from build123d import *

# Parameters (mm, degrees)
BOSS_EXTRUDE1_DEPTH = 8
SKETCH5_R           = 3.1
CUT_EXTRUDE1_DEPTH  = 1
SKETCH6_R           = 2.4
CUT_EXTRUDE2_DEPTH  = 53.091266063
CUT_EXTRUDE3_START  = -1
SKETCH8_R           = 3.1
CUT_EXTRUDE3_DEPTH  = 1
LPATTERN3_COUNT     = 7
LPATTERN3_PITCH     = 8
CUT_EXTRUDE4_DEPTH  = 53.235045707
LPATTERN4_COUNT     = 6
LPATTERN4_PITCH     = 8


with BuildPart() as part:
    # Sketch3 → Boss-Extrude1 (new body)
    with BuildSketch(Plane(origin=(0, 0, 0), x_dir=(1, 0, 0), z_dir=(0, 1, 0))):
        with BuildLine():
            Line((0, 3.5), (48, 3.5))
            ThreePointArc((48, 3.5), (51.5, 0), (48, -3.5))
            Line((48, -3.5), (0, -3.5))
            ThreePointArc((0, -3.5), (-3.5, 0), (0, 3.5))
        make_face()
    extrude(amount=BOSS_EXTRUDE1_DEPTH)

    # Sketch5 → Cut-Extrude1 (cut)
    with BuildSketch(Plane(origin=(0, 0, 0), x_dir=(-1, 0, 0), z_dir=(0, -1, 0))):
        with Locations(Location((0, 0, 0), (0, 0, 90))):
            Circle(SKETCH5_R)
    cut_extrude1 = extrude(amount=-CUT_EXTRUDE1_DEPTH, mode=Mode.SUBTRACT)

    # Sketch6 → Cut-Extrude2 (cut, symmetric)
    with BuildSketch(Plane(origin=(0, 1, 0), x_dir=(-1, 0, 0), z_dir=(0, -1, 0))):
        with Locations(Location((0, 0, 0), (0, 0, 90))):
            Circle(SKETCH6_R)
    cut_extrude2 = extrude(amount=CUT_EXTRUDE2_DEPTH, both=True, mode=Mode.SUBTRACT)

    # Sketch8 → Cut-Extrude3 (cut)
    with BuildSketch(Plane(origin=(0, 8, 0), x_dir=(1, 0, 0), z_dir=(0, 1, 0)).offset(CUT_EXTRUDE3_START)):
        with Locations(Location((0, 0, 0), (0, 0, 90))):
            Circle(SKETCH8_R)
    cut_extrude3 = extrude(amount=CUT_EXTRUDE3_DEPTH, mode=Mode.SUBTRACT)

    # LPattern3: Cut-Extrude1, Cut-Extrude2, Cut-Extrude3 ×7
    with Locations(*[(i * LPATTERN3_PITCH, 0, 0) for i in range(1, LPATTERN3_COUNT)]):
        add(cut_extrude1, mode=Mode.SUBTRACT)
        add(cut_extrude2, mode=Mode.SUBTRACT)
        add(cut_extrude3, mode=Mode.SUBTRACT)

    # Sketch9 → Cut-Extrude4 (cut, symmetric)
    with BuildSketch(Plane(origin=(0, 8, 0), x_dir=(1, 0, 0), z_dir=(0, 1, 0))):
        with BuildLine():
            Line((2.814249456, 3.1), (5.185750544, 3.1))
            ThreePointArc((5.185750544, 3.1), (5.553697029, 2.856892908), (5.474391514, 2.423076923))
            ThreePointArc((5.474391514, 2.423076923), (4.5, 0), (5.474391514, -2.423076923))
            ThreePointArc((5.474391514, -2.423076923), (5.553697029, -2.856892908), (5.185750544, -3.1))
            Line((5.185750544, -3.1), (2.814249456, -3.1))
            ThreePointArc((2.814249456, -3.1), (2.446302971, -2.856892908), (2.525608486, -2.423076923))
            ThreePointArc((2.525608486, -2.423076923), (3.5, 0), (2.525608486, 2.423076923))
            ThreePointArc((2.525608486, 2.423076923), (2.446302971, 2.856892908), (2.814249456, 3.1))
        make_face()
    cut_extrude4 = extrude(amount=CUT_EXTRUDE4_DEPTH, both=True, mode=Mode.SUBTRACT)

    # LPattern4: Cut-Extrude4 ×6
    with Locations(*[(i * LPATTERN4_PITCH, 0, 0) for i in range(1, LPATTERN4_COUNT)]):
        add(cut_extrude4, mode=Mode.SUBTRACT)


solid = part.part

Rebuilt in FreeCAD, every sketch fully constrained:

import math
import FreeCAD as App
import Part
import Sketcher
from FreeCAD import Vector

doc = App.newDocument("Part")
params = doc.addObject("Spreadsheet::Sheet", "Params")
for row, (alias, value) in enumerate([
    ("sketch1_radius", "3.5 mm"),
    ("sketch1_width", "48 mm"),
    ("pad1_length", "8 mm"),
    ("sketch2_diameter", "6.2 mm"),
    ("pocket1_length", "1 mm"),
    ("sketch3_diameter", "4.8 mm"),
    ("pocket2_length", "106.182532 mm"),
    ("sketch4_diameter", "6.2 mm"),
    ("pocket3_length", "1 mm"),
    ("linearpattern_pitch", "8 mm"),
    ("sketch5_radius", "0.4 mm"),
    ("sketch5_radius2", "3.5 mm"),
    ("pocket4_length", "106.470091 mm"),
    ("linearpattern2_pitch", "8 mm"),
], start=1):
    params.set(f"A{row}", alias)
    params.set(f"B{row}", "=" + value)
    params.setAlias(f"B{row}", alias)

body = doc.addObject("PartDesign::Body", "Body")

sketch1 = doc.addObject("Sketcher::SketchObject", "Sketch")
body.addObject(sketch1)
sketch1.AttachmentSupport = (doc.XZ_Plane, [""])
sketch1.MapMode = "FlatFace"
sketch1.addGeometry(Part.LineSegment(Vector(48, -3.5, 0), Vector(0, -3.5, 0)), False)
sketch1.addGeometry(Part.ArcOfCircle(Part.Circle(Vector(0, 0, 0), Vector(0, 0, 1), 3.5), math.radians(90), math.radians(270)), False)
sketch1.addGeometry(Part.LineSegment(Vector(0, 3.5, 0), Vector(48, 3.5, 0)), False)
sketch1.addGeometry(Part.ArcOfCircle(Part.Circle(Vector(48, 0, 0), Vector(0, 0, 1), 3.5), math.radians(-90), math.radians(90)), False)
sketch1.addConstraint(Sketcher.Constraint("Tangent", 0, 2, 1, 2))
sketch1.addConstraint(Sketcher.Constraint("Tangent", 1, 1, 2, 1))
sketch1.addConstraint(Sketcher.Constraint("Tangent", 2, 2, 3, 2))
sketch1.addConstraint(Sketcher.Constraint("Tangent", 3, 1, 0, 1))
sketch1.addConstraint(Sketcher.Constraint("Horizontal", 0))
sketch1.addConstraint(Sketcher.Constraint("Horizontal", 2))
sketch1.addConstraint(Sketcher.Constraint("Coincident", 1, 3, -1, 1))
sketch1.addConstraint(Sketcher.Constraint("Radius", 1, 3.5))
sketch1.addConstraint(Sketcher.Constraint("DistanceX", 0, 2, 0, 1, 48.0))
sketch1.setExpression("Constraints[7]", "Params.sketch1_radius")
sketch1.setExpression("Constraints[8]", "Params.sketch1_width")
pad1 = doc.addObject("PartDesign::Pad", "Pad")
body.addObject(pad1)
pad1.Profile = sketch1
pad1.setExpression("Length", "Params.pad1_length")
pad1.Reversed = True

sketch2 = doc.addObject("Sketcher::SketchObject", "Sketch001")
body.addObject(sketch2)
sketch2.AttachmentSupport = (doc.XZ_Plane, [""])
sketch2.MapMode = "FlatFace"
sketch2.addGeometry(Part.Circle(Vector(0, 0, 0), Vector(0, 0, 1), 3.1), False)
sketch2.addConstraint(Sketcher.Constraint("Coincident", 0, 3, -1, 1))
sketch2.addConstraint(Sketcher.Constraint("Diameter", 0, 6.2))
sketch2.setExpression("Constraints[1]", "Params.sketch2_diameter")
pocket1 = doc.addObject("PartDesign::Pocket", "Pocket")
body.addObject(pocket1)
pocket1.Profile = sketch2
pocket1.setExpression("Length", "Params.pocket1_length")

sketch3 = doc.addObject("Sketcher::SketchObject", "Sketch002")
body.addObject(sketch3)
sketch3.AttachmentSupport = (doc.XZ_Plane, [""])
sketch3.MapMode = "FlatFace"
sketch3.AttachmentOffset = App.Placement(Vector(0, 0, -1), App.Rotation())
sketch3.addGeometry(Part.Circle(Vector(0, 0, 0), Vector(0, 0, 1), 2.4), False)
sketch3.addConstraint(Sketcher.Constraint("Coincident", 0, 3, -1, 1))
sketch3.addConstraint(Sketcher.Constraint("Diameter", 0, 4.8))
sketch3.setExpression("Constraints[1]", "Params.sketch3_diameter")
pocket2 = doc.addObject("PartDesign::Pocket", "Pocket001")
body.addObject(pocket2)
pocket2.Profile = sketch3
pocket2.setExpression("Length", "Params.pocket2_length")
pocket2.Midplane = True

sketch4 = doc.addObject("Sketcher::SketchObject", "Sketch003")
body.addObject(sketch4)
sketch4.AttachmentSupport = (doc.XZ_Plane, [""])
sketch4.MapMode = "FlatFace"
sketch4.AttachmentOffset = App.Placement(Vector(0, 0, -7), App.Rotation())
sketch4.addGeometry(Part.Circle(Vector(0, 0, 0), Vector(0, 0, 1), 3.1), False)
sketch4.addConstraint(Sketcher.Constraint("Coincident", 0, 3, -1, 1))
sketch4.addConstraint(Sketcher.Constraint("Diameter", 0, 6.2))
sketch4.setExpression("Constraints[1]", "Params.sketch4_diameter")
pocket3 = doc.addObject("PartDesign::Pocket", "Pocket002")
body.addObject(pocket3)
pocket3.Profile = sketch4
pocket3.setExpression("Length", "Params.pocket3_length")
doc.recompute()

linearpattern = doc.addObject("PartDesign::LinearPattern", "LinearPattern")
body.addObject(linearpattern)
linearpattern.Originals = [pocket1, pocket2, pocket3]
linearpattern.Direction = (doc.X_Axis, [""])
linearpattern.Mode = "offset"
linearpattern.setExpression("Offset", "Params.linearpattern_pitch")
linearpattern.Occurrences = 7
body.Tip = linearpattern

sketch5 = doc.addObject("Sketcher::SketchObject", "Sketch004")
body.addObject(sketch5)
sketch5.AttachmentSupport = (doc.XZ_Plane, [""])
sketch5.MapMode = "FlatFace"
sketch5.AttachmentOffset = App.Placement(Vector(0, 0, -8), App.Rotation())
sketch5.addGeometry(Part.LineSegment(Vector(5.19, -3.1, 0), Vector(2.81, -3.1, 0)), False)
sketch5.addGeometry(Part.ArcOfCircle(Part.Circle(Vector(2.81, -2.7, 0), Vector(0, 0, 1), 0.4), math.radians(136), math.radians(270)), False)
sketch5.addGeometry(Part.ArcOfCircle(Part.Circle(Vector(0, 0, 0), Vector(0, 0, 1), 3.5), math.radians(-44), math.radians(44)), False)
sketch5.addGeometry(Part.ArcOfCircle(Part.Circle(Vector(2.81, 2.7, 0), Vector(0, 0, 1), 0.4), math.radians(90), math.radians(224)), False)
sketch5.addGeometry(Part.LineSegment(Vector(2.81, 3.1, 0), Vector(5.19, 3.1, 0)), False)
sketch5.addGeometry(Part.ArcOfCircle(Part.Circle(Vector(5.19, 2.7, 0), Vector(0, 0, 1), 0.4), math.radians(-44), math.radians(90)), False)
sketch5.addGeometry(Part.ArcOfCircle(Part.Circle(Vector(8, 0, 0), Vector(0, 0, 1), 3.5), math.radians(136), math.radians(224)), False)
sketch5.addGeometry(Part.ArcOfCircle(Part.Circle(Vector(5.19, -2.7, 0), Vector(0, 0, 1), 0.4), math.radians(-90), math.radians(44)), False)
sketch5.addConstraint(Sketcher.Constraint("Tangent", 0, 2, 1, 2))
sketch5.addConstraint(Sketcher.Constraint("Tangent", 1, 1, 2, 1))
sketch5.addConstraint(Sketcher.Constraint("Tangent", 2, 2, 3, 2))
sketch5.addConstraint(Sketcher.Constraint("Tangent", 3, 1, 4, 1))
sketch5.addConstraint(Sketcher.Constraint("Tangent", 4, 2, 5, 2))
sketch5.addConstraint(Sketcher.Constraint("Tangent", 5, 1, 6, 1))
sketch5.addConstraint(Sketcher.Constraint("Tangent", 6, 2, 7, 2))
sketch5.addConstraint(Sketcher.Constraint("Tangent", 7, 1, 0, 1))
sketch5.addConstraint(Sketcher.Constraint("Horizontal", 0))
sketch5.addConstraint(Sketcher.Constraint("Horizontal", 4))
sketch5.addConstraint(Sketcher.Constraint("Coincident", 2, 3, -1, 1))
sketch5.addConstraint(Sketcher.Constraint("Equal", 1, 3))
sketch5.addConstraint(Sketcher.Constraint("Equal", 3, 5))
sketch5.addConstraint(Sketcher.Constraint("Equal", 2, 6))
sketch5.addConstraint(Sketcher.Constraint("Equal", 5, 7))
sketch5.addConstraint(Sketcher.Constraint("Symmetric", 5, 3, 7, 3, -1))
sketch5.addConstraint(Sketcher.Constraint("Radius", 1, 0.4))
sketch5.addConstraint(Sketcher.Constraint("Radius", 2, 3.5))
sketch5.addConstraint(Sketcher.Constraint("DistanceX", -1, 1, 6, 3, 8.0))
sketch5.addConstraint(Sketcher.Constraint("DistanceY", 1, 3, -1, 1, 2.7))
sketch5.setExpression("Constraints[16]", "Params.sketch5_radius")
sketch5.setExpression("Constraints[17]", "Params.sketch5_radius2")
pocket4 = doc.addObject("PartDesign::Pocket", "Pocket003")
body.addObject(pocket4)
pocket4.Profile = sketch5
pocket4.setExpression("Length", "Params.pocket4_length")
pocket4.Midplane = True
doc.recompute()

linearpattern2 = doc.addObject("PartDesign::LinearPattern", "LinearPattern001")
body.addObject(linearpattern2)
linearpattern2.Originals = [pocket4]
linearpattern2.Direction = (doc.X_Axis, [""])
linearpattern2.Mode = "offset"
linearpattern2.setExpression("Offset", "Params.linearpattern2_pitch")
linearpattern2.Occurrences = 6
body.Tip = linearpattern2

doc.recompute()
